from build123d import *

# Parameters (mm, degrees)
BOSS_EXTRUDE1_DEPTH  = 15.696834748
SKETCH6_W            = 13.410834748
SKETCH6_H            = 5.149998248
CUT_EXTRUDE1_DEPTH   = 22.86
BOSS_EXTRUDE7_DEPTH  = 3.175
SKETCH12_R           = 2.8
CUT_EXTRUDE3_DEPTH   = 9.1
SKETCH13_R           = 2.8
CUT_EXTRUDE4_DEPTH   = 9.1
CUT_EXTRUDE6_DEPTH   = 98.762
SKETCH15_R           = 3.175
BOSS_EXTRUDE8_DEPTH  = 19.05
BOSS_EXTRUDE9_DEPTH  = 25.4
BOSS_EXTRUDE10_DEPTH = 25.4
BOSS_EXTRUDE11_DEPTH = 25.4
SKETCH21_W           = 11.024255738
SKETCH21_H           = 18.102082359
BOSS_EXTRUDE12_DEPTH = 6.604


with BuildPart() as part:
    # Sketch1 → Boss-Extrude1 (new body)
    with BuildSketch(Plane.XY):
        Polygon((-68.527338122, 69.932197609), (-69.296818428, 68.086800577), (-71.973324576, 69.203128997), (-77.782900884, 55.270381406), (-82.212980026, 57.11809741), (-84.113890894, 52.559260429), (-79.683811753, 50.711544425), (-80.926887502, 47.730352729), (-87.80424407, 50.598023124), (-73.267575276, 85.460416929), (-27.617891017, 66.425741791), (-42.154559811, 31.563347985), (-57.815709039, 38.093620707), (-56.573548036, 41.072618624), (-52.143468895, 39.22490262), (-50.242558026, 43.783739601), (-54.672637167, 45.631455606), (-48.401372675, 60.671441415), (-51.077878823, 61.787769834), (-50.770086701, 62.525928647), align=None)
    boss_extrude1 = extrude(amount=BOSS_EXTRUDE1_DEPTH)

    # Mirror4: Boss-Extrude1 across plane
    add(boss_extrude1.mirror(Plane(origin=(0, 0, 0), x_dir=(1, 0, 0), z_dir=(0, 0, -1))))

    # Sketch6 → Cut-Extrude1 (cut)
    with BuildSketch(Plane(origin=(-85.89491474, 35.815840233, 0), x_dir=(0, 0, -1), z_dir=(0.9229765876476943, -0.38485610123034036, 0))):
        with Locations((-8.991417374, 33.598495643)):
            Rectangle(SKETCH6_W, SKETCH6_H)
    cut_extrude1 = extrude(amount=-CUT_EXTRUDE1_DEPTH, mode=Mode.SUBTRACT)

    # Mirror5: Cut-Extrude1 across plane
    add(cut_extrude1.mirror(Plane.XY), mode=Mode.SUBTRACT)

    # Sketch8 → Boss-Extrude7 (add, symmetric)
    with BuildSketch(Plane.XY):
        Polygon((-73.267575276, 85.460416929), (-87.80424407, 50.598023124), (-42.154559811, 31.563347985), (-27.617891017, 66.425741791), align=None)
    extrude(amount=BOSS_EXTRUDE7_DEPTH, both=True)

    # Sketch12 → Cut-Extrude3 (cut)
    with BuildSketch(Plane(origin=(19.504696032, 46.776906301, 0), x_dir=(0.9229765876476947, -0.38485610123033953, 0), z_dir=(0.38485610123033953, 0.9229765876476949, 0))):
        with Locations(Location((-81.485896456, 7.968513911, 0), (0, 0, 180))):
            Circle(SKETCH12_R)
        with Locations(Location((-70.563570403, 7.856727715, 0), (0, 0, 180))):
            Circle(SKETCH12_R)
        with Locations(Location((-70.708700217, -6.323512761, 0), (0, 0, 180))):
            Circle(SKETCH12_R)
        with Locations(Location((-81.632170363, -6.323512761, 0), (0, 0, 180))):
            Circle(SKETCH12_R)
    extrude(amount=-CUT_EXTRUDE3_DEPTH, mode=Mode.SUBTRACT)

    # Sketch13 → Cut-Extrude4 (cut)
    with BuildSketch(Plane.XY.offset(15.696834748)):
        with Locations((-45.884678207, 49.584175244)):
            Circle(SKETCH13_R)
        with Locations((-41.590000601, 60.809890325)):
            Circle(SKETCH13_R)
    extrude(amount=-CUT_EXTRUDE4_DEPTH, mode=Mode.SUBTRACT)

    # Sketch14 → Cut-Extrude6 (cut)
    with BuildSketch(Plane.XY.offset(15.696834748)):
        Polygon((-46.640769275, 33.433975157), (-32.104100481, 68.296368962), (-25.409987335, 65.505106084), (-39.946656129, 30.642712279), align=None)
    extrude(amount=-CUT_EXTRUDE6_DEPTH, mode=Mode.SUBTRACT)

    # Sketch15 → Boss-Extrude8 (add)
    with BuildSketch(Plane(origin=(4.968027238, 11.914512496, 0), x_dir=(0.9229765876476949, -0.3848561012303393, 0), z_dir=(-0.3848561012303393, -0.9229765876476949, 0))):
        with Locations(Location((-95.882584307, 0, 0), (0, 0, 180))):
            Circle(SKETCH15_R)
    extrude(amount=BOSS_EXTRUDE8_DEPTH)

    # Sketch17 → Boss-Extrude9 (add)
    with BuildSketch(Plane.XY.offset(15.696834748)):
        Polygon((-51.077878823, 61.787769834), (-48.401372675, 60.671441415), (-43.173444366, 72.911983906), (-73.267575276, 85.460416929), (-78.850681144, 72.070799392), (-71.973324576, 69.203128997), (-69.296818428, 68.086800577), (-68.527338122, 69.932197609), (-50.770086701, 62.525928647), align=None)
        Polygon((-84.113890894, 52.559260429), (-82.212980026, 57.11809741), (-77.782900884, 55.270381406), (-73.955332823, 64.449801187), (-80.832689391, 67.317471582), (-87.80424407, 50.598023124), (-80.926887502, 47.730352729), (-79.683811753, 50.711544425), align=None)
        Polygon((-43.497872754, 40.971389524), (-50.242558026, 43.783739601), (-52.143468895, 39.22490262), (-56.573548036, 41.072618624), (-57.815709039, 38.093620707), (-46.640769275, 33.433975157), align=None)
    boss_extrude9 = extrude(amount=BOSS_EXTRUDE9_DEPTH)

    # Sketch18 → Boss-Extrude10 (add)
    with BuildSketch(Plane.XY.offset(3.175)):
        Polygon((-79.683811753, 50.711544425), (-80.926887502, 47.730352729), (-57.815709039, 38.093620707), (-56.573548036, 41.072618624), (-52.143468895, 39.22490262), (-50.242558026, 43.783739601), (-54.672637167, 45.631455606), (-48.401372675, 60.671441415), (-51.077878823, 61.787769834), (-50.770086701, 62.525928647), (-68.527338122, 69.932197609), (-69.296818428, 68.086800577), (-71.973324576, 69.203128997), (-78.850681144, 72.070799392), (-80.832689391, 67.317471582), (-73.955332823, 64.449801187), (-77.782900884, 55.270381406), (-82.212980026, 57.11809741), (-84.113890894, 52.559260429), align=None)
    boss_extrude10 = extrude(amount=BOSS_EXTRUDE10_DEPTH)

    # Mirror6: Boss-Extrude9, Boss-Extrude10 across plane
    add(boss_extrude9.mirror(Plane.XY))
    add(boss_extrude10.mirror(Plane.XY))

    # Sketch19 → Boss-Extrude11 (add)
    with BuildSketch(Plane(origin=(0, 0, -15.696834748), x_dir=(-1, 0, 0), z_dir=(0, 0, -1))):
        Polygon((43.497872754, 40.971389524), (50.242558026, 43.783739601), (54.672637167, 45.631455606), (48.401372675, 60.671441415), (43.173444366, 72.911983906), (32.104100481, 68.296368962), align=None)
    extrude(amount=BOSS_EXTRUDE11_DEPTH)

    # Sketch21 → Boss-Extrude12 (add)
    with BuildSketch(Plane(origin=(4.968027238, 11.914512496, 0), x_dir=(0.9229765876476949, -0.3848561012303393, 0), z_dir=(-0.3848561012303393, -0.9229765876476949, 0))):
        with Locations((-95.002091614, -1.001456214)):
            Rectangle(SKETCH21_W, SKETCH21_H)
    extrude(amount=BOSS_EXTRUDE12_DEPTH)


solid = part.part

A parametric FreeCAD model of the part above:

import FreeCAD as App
import Part
import Sketcher
from FreeCAD import Vector
Q = App.Units.Quantity


def add_polygon(sketch, points):
    """Adds a closed chain of lines whose ends are joined by coincident constraints."""
    first, n = sketch.GeometryCount, len(points)
    for a, b in zip(points, points[1:] + points[:1]):
        sketch.addGeometry(Part.LineSegment(App.Vector(*a, 0), App.Vector(*b, 0)), False)
    for i in range(n):
        sketch.addConstraint(Sketcher.Constraint("Coincident", first + i, 2, first + (i + 1) % n, 1))

doc = App.newDocument("Part")
body = doc.addObject("PartDesign::Body", "Body")

# Sketch on XY plane
sketch1 = body.newObject("Sketcher::SketchObject", "Sketch")
sketch1.AttachmentSupport = (doc.getObject("XY_Plane"), [""])
sketch1.MapMode = "FlatFace"
add_polygon(sketch1, [(-69.3, 68.1), (-68.5, 69.9), (-50.8, 62.5), (-51.1, 61.8), (-48.4, 60.7), (-54.7, 45.6), (-50.2, 43.8), (-52.1, 39.2), (-56.6, 41.1), (-57.8, 38.1), (-42.2, 31.6), (-27.6, 66.4), (-73.3, 85.5), (-87.8, 50.6), (-80.9, 47.7), (-79.7, 50.7), (-84.1, 52.6), (-82.2, 57.1), (-77.8, 55.3), (-72, 69.2)])  # lines 0-19
sketch1.addConstraint([
    Sketcher.Constraint("Parallel", 0, 2),
    Sketcher.Constraint("Parallel", 1, 3),
    Sketcher.Constraint("Parallel", 2, 4),
    Sketcher.Constraint("Parallel", 3, 5),
    Sketcher.Constraint("Parallel", 4, 6),
    Sketcher.Constraint("Parallel", 5, 7),
    Sketcher.Constraint("Parallel", 6, 8),
    Sketcher.Constraint("Perpendicular", 8, 9),
    Sketcher.Constraint("Perpendicular", 9, 10),
    Sketcher.Constraint("Perpendicular", 10, 11),
    Sketcher.Constraint("Perpendicular", 11, 12),
    Sketcher.Constraint("Perpendicular", 12, 13),
    Sketcher.Constraint("Perpendicular", 13, 14),
    Sketcher.Constraint("Parallel", 7, 15),
    Sketcher.Constraint("Parallel", 14, 16),
    Sketcher.Constraint("Parallel", 15, 17),
    Sketcher.Constraint("Parallel", 16, 18),
    Sketcher.Constraint("Parallel", 17, 19),
    Sketcher.Constraint("Equal", 5, 7),
    Sketcher.Constraint("Equal", 10, 12),
    Sketcher.Constraint("Equal", 7, 15),
    Sketcher.Constraint("Equal", 6, 16),
    Sketcher.Constraint("Equal", 15, 17),
    Sketcher.Constraint("Equal", 3, 19),
    Sketcher.Constraint("DistanceX", 4, 2, 3, 2, Q("0.2469002 in")),
    Sketcher.Constraint("Distance", 8, 3.227599),
    Sketcher.Constraint("Distance", 10, 37.771699),
    Sketcher.Constraint("Distance", 11, 49.459201),
    Sketcher.Constraint("DistanceX", 17, 2, -1, 1, 77.782901),
    Sketcher.Constraint("DistanceY", -1, 1, 19, 2, 68.086801),
    Sketcher.Constraint("DistanceX", 0, 2, 4, 2, 13.854701),
    Sketcher.Constraint("DistanceY", 5, 2, 3, 2, 16.887702),
    Sketcher.Constraint("DistanceX", 5, 2, 9, 2, 8.087998),
    Sketcher.Constraint("DistanceY", 3, 2, 10, 2, 5.7543),
    Sketcher.Constraint("DistanceY", 16, 2, 0, 2, 12.8141),
    Sketcher.Constraint("Distance", 2, 0.799759),
    Sketcher.Constraint("Distance", 3, 2.899978),
    Sketcher.Constraint("Distance", 4, 16.295089),
    Sketcher.Constraint("Distance", 9, 16.968089),
    Sketcher.Constraint("Distance", 18, 15.095451),
])
pad1 = body.newObject("PartDesign::Pad", "Pad")
pad1.Profile = sketch1
pad1.Length = 15.696835
doc.recompute()

mirrored = body.newObject("PartDesign::Mirrored", "Mirrored")
mirrored.Originals = [pad1]
mirrored.MirrorPlane = (doc.getObject("XY_Plane"), [""])
body.Tip = mirrored

# Sketch on an angled plane
sketch2 = body.newObject("Sketcher::SketchObject", "Sketch001")
sketch2.Placement = App.Placement(Vector(-85.894915, 35.81584, 0), App.Rotation(Vector(0, 0, -1), Vector(0.384856101, 0.922976588, 0), Vector(0.922976588, -0.384856101, 0), "ZXY"))
add_polygon(sketch2, [(-16, 36), (-16, 31), (-2, 31), (-2, 36)])  # lines 0-3
sketch2.addConstraint([
    Sketcher.Constraint("Vertical", 0),
    Sketcher.Constraint("Horizontal", 1),
    Sketcher.Constraint("Vertical", 2),
    Sketcher.Constraint("Horizontal", 3),
    Sketcher.Constraint("DistanceX", 1, 2, -1, 1, Q("0.09 in")),
    Sketcher.Constraint("DistanceY", 0, 2, 0, 1, 5.149998),
    Sketcher.Constraint("DistanceX", 1, 1, 1, 2, 13.410835),
    Sketcher.Constraint("DistanceY", -1, 1, 0, 2, 31.023497),
])
pocket1 = body.newObject("PartDesign::Pocket", "Pocket")
pocket1.Profile = sketch2
pocket1.Length = Q("0.9 in")
doc.recompute()

mirrored2 = body.newObject("PartDesign::Mirrored", "Mirrored001")
mirrored2.Originals = [pocket1]
mirrored2.MirrorPlane = (doc.getObject("XY_Plane"), [""])
body.Tip = mirrored2

# Sketch on XY plane
sketch3 = body.newObject("Sketcher::SketchObject", "Sketch002")
sketch3.AttachmentSupport = (doc.getObject("XY_Plane"), [""])
sketch3.MapMode = "FlatFace"
add_polygon(sketch3, [(-73, 85), (-88, 51), (-42, 32), (-28, 66)])  # lines 0-3
sketch3.addConstraint([
    Sketcher.Constraint("Perpendicular", 0, 1),
    Sketcher.Constraint("Perpendicular", 1, 2),
    Sketcher.Constraint("Perpendicular", 2, 3),
    Sketcher.Constraint("Distance", 0, 37.771699),
    Sketcher.Constraint("Distance", 1, 49.459201),
    Sketcher.Constraint("DistanceX", 1, 2, -1, 1, 42.15456),
    Sketcher.Constraint("DistanceX", 2, 2, -1, 1, 27.617891),
    Sketcher.Constraint("DistanceY", -1, 1, 2, 2, 66.425742),
])
pad2 = body.newObject("PartDesign::Pad", "Pad001")
pad2.Profile = sketch3
pad2.Length = Q("0.25 in")
pad2.Midplane = True

# Sketch on an angled plane
sketch4 = body.newObject("Sketcher::SketchObject", "Sketch003")
sketch4.Placement = App.Placement(Vector(19.504696, 46.776906, 0), App.Rotation(Vector(0.922976588, -0.384856101, 0), Vector(0, 0, -1), Vector(0.384856101, 0.922976588, 0), "ZXY"))
sketch4.addGeometry([
    Part.Circle(Vector(-81.5, 8, 0), Vector(0, 0, 1), 2.8),
    Part.Circle(Vector(-70.6, 7.9, 0), Vector(0, 0, 1), 2.8),
    Part.Circle(Vector(-70.7, -6.3, 0), Vector(0, 0, 1), 2.8),
    Part.Circle(Vector(-81.6, -6.3, 0), Vector(0, 0, 1), 2.8),
], False)
sketch4.addConstraint([
    Sketcher.Constraint("Equal", 0, 1),
    Sketcher.Constraint("Equal", 1, 2),
    Sketcher.Constraint("Equal", 2, 3),
    Sketcher.Constraint("Horizontal", 2, 3, 3, 3),
    Sketcher.Constraint("Diameter", 0, 5.6),
    Sketcher.Constraint("DistanceX", 2, 3, -1, 1, 70.7087),
    Sketcher.Constraint("DistanceX", 3, 3, 1, 3, 11.0686),
    Sketcher.Constraint("DistanceX", 1, 3, -1, 1, 70.56357),
    Sketcher.Constraint("DistanceY", 2, 3, 1, 3, 14.18024),
    Sketcher.Constraint("DistanceX", 0, 3, -1, 1, 81.485896),
    Sketcher.Constraint("DistanceY", -1, 1, 0, 3, 7.968514),
    Sketcher.Constraint("DistanceY", -1, 1, 1, 3, 7.856728),
])
pocket2 = body.newObject("PartDesign::Pocket", "Pocket001")
pocket2.Profile = sketch4
pocket2.Length = 9.1

# Sketch on XY plane
sketch5 = body.newObject("Sketcher::SketchObject", "Sketch004")
sketch5.AttachmentSupport = (doc.getObject("XY_Plane"), [""])
sketch5.MapMode = "FlatFace"
sketch5.AttachmentOffset = App.Placement(Vector(0, 0, 15.696835), App.Rotation())
sketch5.addGeometry([
    Part.Circle(Vector(-45.9, 49.6, 0), Vector(0, 0, 1), 2.8),
    Part.Circle(Vector(-41.6, 60.8, 0), Vector(0, 0, 1), 2.8),
], False)
sketch5.addConstraint([
    Sketcher.Constraint("Equal", 0, 1),
    Sketcher.Constraint("Diameter", 0, 5.6),
    Sketcher.Constraint("DistanceX", 1, 3, -1, 1, 41.590001),
    Sketcher.Constraint("DistanceX", 0, 3, -1, 1, 45.884678),
    Sketcher.Constraint("DistanceY", -1, 1, 1, 3, 60.80989),
    Sketcher.Constraint("DistanceY", -1, 1, 0, 3, 49.584175),
])
pocket3 = body.newObject("PartDesign::Pocket", "Pocket002")
pocket3.Profile = sketch5
pocket3.Length = 9.1

# Sketch on XY plane
sketch6 = body.newObject("Sketcher::SketchObject", "Sketch005")
sketch6.AttachmentSupport = (doc.getObject("XY_Plane"), [""])
sketch6.MapMode = "FlatFace"
sketch6.AttachmentOffset = App.Placement(Vector(0, 0, 15.696835), App.Rotation())
add_polygon(sketch6, [(-32, 68), (-47, 33), (-40, 31), (-25, 66)])  # lines 0-3
sketch6.addConstraint([
    Sketcher.Constraint("Perpendicular", 0, 1),
    Sketcher.Constraint("Perpendicular", 1, 2),
    Sketcher.Constraint("Perpendicular", 2, 3),
    Sketcher.Constraint("Distance", 0, 37.771699),
    Sketcher.Constraint("DistanceX", 3, 2, -1, 1, 32.1041),
    Sketcher.Constraint("DistanceX", 0, 2, -1, 1, 46.640769),
    Sketcher.Constraint("DistanceY", -1, 1, 3, 2, 68.296369),
    Sketcher.Constraint("DistanceX", 0, 2, 2, 2, 21.230782),
])
pocket4 = body.newObject("PartDesign::Pocket", "Pocket003")
pocket4.Profile = sketch6
pocket4.Length = 98.762

# Sketch on an angled plane
sketch7 = body.newObject("Sketcher::SketchObject", "Sketch006")
sketch7.Placement = App.Placement(Vector(4.968027, 11.914512, 0), App.Rotation(Vector(0.922976588, -0.384856101, 0), Vector(0, 0, 1), Vector(-0.384856101, -0.922976588, 0), "ZXY"))
sketch7.addGeometry(Part.Circle(Vector(-95.9, 0, 0), Vector(0, 0, 1), 3.2), False)
sketch7.addConstraint([
    Sketcher.Constraint("PointOnObject", 0, 3, -1),
    Sketcher.Constraint("Diameter", 0, Q("0.25 in")),
    Sketcher.Constraint("DistanceX", 0, 3, -1, 1, 95.882584),
])
pad3 = body.newObject("PartDesign::Pad", "Pad002")
pad3.Profile = sketch7
pad3.Length = Q("0.75 in")

# Sketch on XY plane
sketch8 = body.newObject("Sketcher::SketchObject", "Sketch007")
sketch8.AttachmentSupport = (doc.getObject("XY_Plane"), [""])
sketch8.MapMode = "FlatFace"
sketch8.AttachmentOffset = App.Placement(Vector(0, 0, 15.696835), App.Rotation())
add_polygon(sketch8, [(-51.1, 61.8), (-48.4, 60.7), (-43.2, 72.9), (-73.3, 85.5), (-78.9, 72.1), (-72, 69.2), (-69.3, 68.1), (-68.5, 69.9), (-50.8, 62.5)])  # lines 0-8
add_polygon(sketch8, [(-84.1, 52.6), (-82.2, 57.1), (-77.8, 55.3), (-74, 64.4), (-80.8, 67.3), (-87.8, 50.6), (-80.9, 47.7), (-79.7, 50.7)])  # lines 9-16
add_polygon(sketch8, [(-43.5, 41), (-50.2, 43.8), (-52.1, 39.2), (-56.6, 41.1), (-57.8, 38.1), (-46.6, 33.4)])  # lines 17-22
sketch8.addConstraint([
    Sketcher.Constraint("Perpendicular", 2, 3),
    Sketcher.Constraint("Perpendicular", 3, 4),
    Sketcher.Constraint("Parallel", 0, 5),
    Sketcher.Constraint("Perpendicular", 4, 6),
    Sketcher.Constraint("Parallel", 5, 7),
    Sketcher.Constraint("Parallel", 6, 8),
    Sketcher.Constraint("Parallel", 8, 9),
    Sketcher.Constraint("Parallel", 7, 10),
    Sketcher.Constraint("Parallel", 9, 11),
    Sketcher.Constraint("Perpendicular", 11, 12),
    Sketcher.Constraint("Perpendicular", 12, 13),
    Sketcher.Constraint("Perpendicular", 13, 14),
    Sketcher.Constraint("Perpendicular", 14, 15),
    Sketcher.Constraint("Parallel", 10, 16),
    Sketcher.Constraint("Perpendicular", 15, 17),
    Sketcher.Constraint("Perpendicular", 17, 18),
    Sketcher.Constraint("Parallel", 16, 19),
    Sketcher.Constraint("Parallel", 18, 20),
    Sketcher.Constraint("Perpendicular", 20, 21),
    Sketcher.Constraint("Perpendicular", 21, 22),
    Sketcher.Constraint("Equal", 0, 5),
    Sketcher.Constraint("Equal", 4, 12),
    Sketcher.Constraint("Equal", 12, 14),
    Sketcher.Constraint("Equal", 9, 18),
    Sketcher.Constraint("Equal", 16, 19),
    Sketcher.Constraint("DistanceY", 7, 2, 1, 2, Q("0.4088998 in")),
    Sketcher.Constraint("Distance", 20, 3.227599),
    Sketcher.Constraint("Distance", 21, 12.107501),
    Sketcher.Constraint("DistanceY", -1, 1, 3, 2, 72.070799),
    Sketcher.Constraint("DistanceY", -1, 1, 5, 2, 68.086801),
    Sketcher.Constraint("DistanceX", 10, 2, -1, 1, 77.782901),
    Sketcher.Constraint("DistanceY", -1, 1, 11, 2, 64.449801),
    Sketcher.Constraint("DistanceY", 6, 2, 3, 2, 2.138602),
    Sketcher.Constraint("DistanceY", 7, 2, 4, 2, 6.6772),
    Sketcher.Constraint("DistanceX", 9, 2, 3, 2, 3.362299),
    Sketcher.Constraint("DistanceY", 9, 2, 3, 2, 14.952702),
    Sketcher.Constraint("DistanceX", 14, 2, 12, 2, 0.094198),
    Sketcher.Constraint("DistanceY", 17, 2, 0, 2, 16.887702),
    Sketcher.Constraint("DistanceX", 18, 2, 21, 2, 5.5027),
    Sketcher.Constraint("Distance", 0, 2.899978),
    Sketcher.Constraint("Distance", 2, 32.605519),
    Sketcher.Constraint("Distance", 4, 7.45128),
    Sketcher.Constraint("Distance", 8, 0.799759),
    Sketcher.Constraint("Distance", 22, 8.16642),
    Sketcher.Constraint("DistanceX", 3, 2, -1, 1, 78.850681),
    Sketcher.Constraint("DistanceX", 17, 2, -1, 1, 50.242558),
])
pad4 = body.newObject("PartDesign::Pad", "Pad003")
pad4.Profile = sketch8
pad4.Length = Q("1 in")

# Sketch on XY plane
sketch9 = body.newObject("Sketcher::SketchObject", "Sketch008")
sketch9.AttachmentSupport = (doc.getObject("XY_Plane"), [""])
sketch9.MapMode = "FlatFace"
sketch9.AttachmentOffset = App.Placement(Vector(0, 0, 0.125 * 25.4), App.Rotation())
add_polygon(sketch9, [(-79.7, 50.7), (-80.9, 47.7), (-57.8, 38.1), (-56.6, 41.1), (-52.1, 39.2), (-50.2, 43.8), (-54.7, 45.6), (-48.4, 60.7), (-51.1, 61.8), (-50.8, 62.5), (-68.5, 69.9), (-69.3, 68.1), (-72, 69.2), (-78.9, 72.1), (-80.8, 67.3), (-74, 64.4), (-77.8, 55.3), (-82.2, 57.1), (-84.1, 52.6)])  # lines 0-18
sketch9.addConstraint([
    Sketcher.Constraint("Perpendicular", 0, 1),
    Sketcher.Constraint("Perpendicular", 1, 2),
    Sketcher.Constraint("Parallel", 2, 4),
    Sketcher.Constraint("Parallel", 3, 5),
    Sketcher.Constraint("Parallel", 4, 6),
    Sketcher.Constraint("Parallel", 5, 7),
    Sketcher.Constraint("Parallel", 6, 8),
    Sketcher.Constraint("Parallel", 7, 9),
    Sketcher.Constraint("Parallel", 8, 10),
    Sketcher.Constraint("Parallel", 9, 11),
    Sketcher.Constraint("Perpendicular", 10, 12),
    Sketcher.Constraint("Perpendicular", 12, 13),
    Sketcher.Constraint("Perpendicular", 13, 14),
    Sketcher.Constraint("Perpendicular", 14, 15),
    Sketcher.Constraint("Parallel", 11, 16),
    Sketcher.Constraint("Parallel", 15, 17),
    Sketcher.Constraint("Parallel", 16, 18),
    Sketcher.Constraint("Equal", 3, 5),
    Sketcher.Constraint("Equal", 7, 11),
    Sketcher.Constraint("Equal", 12, 14),
    Sketcher.Constraint("Equal", 5, 16),
    Sketcher.Constraint("Equal", 4, 17),
    Sketcher.Constraint("Equal", 16, 18),
    Sketcher.Constraint("DistanceX", 5, 2, 6, 2, Q("0.2469002 in")),
    Sketcher.Constraint("Distance", 2, 3.227599),
    Sketcher.Constraint("Distance", 13, 5.149998),
    Sketcher.Constraint("DistanceY", -1, 1, 10, 2, 68.086801),
    Sketcher.Constraint("DistanceY", -1, 1, 12, 2, 72.070799),
    Sketcher.Constraint("DistanceY", -1, 1, 14, 2, 64.449801),
    Sketcher.Constraint("DistanceX", 15, 2, -1, 1, 77.782901),
    Sketcher.Constraint("DistanceY", 4, 2, 6, 2, 16.887702),
    Sketcher.Constraint("DistanceX", 9, 2, 5, 2, 13.854701),
    Sketcher.Constraint("DistanceY", 8, 2, 11, 2, 6.6772),
    Sketcher.Constraint("DistanceY", 9, 2, 12, 2, 2.138602),
    Sketcher.Constraint("DistanceX", 0, 2, 13, 2, 0.094198),
    Sketcher.Constraint("DistanceX", 16, 2, 12, 2, 3.362299),
    Sketcher.Constraint("DistanceY", 16, 2, 12, 2, 14.952702),
    Sketcher.Constraint("DistanceX", 17, 2, 13, 2, 3.281202),
])
pad5 = body.newObject("PartDesign::Pad", "Pad004")
pad5.Profile = sketch9
pad5.Length = Q("1 in")
doc.recompute()

mirrored3 = body.newObject("PartDesign::Mirrored", "Mirrored002")
mirrored3.Originals = [pad4, pad5]
mirrored3.MirrorPlane = (doc.getObject("XY_Plane"), [""])
body.Tip = mirrored3

# Sketch on XY plane
sketch10 = body.newObject("Sketcher::SketchObject", "Sketch009")
sketch10.AttachmentSupport = (doc.getObject("XY_Plane"), [""])
sketch10.MapMode = "FlatFace"
sketch10.AttachmentOffset = App.Placement(Vector(0, 0, -15.696835), App.Rotation())
add_polygon(sketch10, [(-43.5, 41), (-50.2, 43.8), (-54.7, 45.6), (-48.4, 60.7), (-43.2, 72.9), (-32.1, 68.3)])  # lines 0-5
sketch10.addConstraint([
    Sketcher.Constraint("Perpendicular", 0, 2),
    Sketcher.Constraint("Perpendicular", 2, 4),
    Sketcher.Constraint("Perpendicular", 4, 5),
    Sketcher.Constraint("DistanceX", 1, 2, 2, 2, Q("0.2469002 in")),
    Sketcher.Constraint("DistanceX", 4, 2, -1, 1, 32.1041),
    Sketcher.Constraint("DistanceY", 0, 2, 2, 2, 16.887702),
    Sketcher.Constraint("DistanceX", 2, 2, 5, 2, 4.9035),
    Sketcher.Constraint("Distance", 2, 16.295089),
    Sketcher.Constraint("Distance", 5, 29.605279),
    Sketcher.Constraint("DistanceX", 0, 2, -1, 1, 50.242558),
    Sketcher.Constraint("DistanceY", -1, 1, 0, 2, 43.78374),
    Sketcher.Constraint("DistanceX", 2, 2, 3, 2, 5.227928),
])
pad6 = body.newObject("PartDesign::Pad", "Pad005")
pad6.Profile = sketch10
pad6.Length = Q("1 in")
pad6.Reversed = True

# Sketch on an angled plane
sketch11 = body.newObject("Sketcher::SketchObject", "Sketch010")
sketch11.Placement = App.Placement(Vector(4.968027, 11.914512, 0), App.Rotation(Vector(0.922976588, -0.384856101, 0), Vector(0, 0, 1), Vector(-0.384856101, -0.922976588, 0), "ZXY"))
add_polygon(sketch11, [(-101, 8), (-101, -10), (-89, -10), (-89, 8)])  # lines 0-3
sketch11.addConstraint([
    Sketcher.Constraint("Vertical", 0),
    Sketcher.Constraint("Horizontal", 1),
    Sketcher.Constraint("Vertical", 2),
    Sketcher.Constraint("Horizontal", 3),
    Sketcher.Constraint("DistanceX", 1, 1, 1, 2, 11.024256),
    Sketcher.Constraint("DistanceY", 0, 2, 0, 1, 18.102082),
    Sketcher.Constraint("DistanceX", 0, 2, -1, 1, 100.51422),
    Sketcher.Constraint("DistanceY", 0, 2, -1, 1, 10.052497),
])
pad7 = body.newObject("PartDesign::Pad", "Pad006")
pad7.Profile = sketch11
pad7.Length = Q("0.26 in")

doc.recompute()
